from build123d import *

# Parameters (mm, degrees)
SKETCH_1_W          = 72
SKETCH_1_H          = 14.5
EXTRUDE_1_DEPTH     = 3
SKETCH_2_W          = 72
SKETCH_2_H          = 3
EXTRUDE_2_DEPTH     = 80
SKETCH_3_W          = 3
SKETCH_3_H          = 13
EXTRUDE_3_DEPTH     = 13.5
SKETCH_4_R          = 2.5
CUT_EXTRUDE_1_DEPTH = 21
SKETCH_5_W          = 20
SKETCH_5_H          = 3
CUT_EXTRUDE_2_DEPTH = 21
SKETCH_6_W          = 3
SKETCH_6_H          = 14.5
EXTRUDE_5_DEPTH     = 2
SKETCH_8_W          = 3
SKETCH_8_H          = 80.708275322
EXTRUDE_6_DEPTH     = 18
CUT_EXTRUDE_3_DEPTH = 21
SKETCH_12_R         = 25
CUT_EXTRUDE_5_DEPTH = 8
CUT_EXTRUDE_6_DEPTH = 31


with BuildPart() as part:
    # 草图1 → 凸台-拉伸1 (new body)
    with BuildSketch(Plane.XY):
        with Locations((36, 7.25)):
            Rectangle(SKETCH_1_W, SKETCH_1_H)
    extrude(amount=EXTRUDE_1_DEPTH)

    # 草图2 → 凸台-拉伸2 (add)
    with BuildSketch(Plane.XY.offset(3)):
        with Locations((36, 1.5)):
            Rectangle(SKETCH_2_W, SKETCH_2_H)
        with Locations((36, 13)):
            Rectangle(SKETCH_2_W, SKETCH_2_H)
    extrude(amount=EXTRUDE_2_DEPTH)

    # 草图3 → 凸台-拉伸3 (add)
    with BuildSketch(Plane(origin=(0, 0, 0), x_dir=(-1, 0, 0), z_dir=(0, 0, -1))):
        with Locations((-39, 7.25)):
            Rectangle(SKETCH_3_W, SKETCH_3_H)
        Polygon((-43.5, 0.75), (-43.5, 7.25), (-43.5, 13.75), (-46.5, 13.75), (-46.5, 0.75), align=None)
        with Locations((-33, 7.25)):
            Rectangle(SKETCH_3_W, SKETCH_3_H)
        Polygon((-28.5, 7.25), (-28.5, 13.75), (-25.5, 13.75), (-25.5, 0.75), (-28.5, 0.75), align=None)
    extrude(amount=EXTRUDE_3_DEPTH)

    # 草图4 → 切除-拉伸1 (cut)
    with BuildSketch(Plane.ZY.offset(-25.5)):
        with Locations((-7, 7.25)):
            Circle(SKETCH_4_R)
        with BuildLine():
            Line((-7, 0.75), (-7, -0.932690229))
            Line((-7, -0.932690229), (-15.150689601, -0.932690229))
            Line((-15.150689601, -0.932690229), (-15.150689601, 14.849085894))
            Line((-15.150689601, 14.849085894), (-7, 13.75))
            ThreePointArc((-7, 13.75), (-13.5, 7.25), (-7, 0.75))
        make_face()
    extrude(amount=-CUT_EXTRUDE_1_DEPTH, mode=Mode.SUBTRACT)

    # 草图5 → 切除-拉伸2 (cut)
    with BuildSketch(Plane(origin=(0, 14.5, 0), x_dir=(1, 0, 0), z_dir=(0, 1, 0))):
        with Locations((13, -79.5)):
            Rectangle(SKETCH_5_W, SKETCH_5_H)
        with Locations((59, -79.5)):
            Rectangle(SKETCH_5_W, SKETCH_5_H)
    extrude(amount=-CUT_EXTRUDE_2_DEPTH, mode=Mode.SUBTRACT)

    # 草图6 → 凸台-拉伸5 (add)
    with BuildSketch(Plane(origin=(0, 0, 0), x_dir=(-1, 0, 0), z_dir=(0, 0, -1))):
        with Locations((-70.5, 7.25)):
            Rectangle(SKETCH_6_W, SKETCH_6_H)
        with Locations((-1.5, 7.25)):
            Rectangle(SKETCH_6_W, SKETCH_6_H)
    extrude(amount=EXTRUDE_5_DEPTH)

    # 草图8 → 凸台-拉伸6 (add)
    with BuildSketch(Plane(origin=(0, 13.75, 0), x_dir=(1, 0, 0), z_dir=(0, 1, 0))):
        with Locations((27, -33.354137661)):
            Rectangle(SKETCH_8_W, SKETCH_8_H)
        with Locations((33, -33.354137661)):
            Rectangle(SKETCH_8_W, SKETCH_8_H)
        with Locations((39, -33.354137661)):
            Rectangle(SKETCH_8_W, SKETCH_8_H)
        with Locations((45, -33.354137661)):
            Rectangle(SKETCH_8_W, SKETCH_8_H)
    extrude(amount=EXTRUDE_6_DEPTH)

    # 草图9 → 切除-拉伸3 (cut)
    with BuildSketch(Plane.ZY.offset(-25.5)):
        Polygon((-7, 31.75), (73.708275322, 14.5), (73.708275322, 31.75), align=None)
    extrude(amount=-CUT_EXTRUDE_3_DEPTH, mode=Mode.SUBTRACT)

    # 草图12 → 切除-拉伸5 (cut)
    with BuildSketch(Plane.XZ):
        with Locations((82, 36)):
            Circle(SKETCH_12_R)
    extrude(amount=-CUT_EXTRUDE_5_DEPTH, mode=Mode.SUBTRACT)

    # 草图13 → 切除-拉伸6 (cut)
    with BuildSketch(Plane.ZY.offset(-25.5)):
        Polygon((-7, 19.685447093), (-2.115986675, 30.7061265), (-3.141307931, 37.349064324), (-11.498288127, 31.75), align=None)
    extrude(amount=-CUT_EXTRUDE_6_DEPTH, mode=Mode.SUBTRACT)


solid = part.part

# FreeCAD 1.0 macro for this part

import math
import FreeCAD as App
import Part
import Sketcher


def add_polygon(sketch, points):
    """Adds a closed chain of lines whose ends are joined by coincident constraints."""
    first, n = sketch.GeometryCount, len(points)
    for a, b in zip(points, points[1:] + points[:1]):
        sketch.addGeometry(Part.LineSegment(App.Vector(*a, 0), App.Vector(*b, 0)), False)
    for i in range(n):
        sketch.addConstraint(Sketcher.Constraint("Coincident", first + i, 2, first + (i + 1) % n, 1))

doc = App.newDocument("Part")
body = doc.addObject("PartDesign::Body", "Body")

sketch1 = body.newObject("Sketcher::SketchObject", "Sketch")
sketch1.AttachmentSupport = (doc.getObject("XY_Plane"), [""])
sketch1.MapMode = "FlatFace"
add_polygon(sketch1, [(0, 14.5), (0, 0), (72, 0), (72, 14.5)])
sketch1.addConstraint([
    Sketcher.Constraint("Vertical", 0),
    Sketcher.Constraint("Horizontal", 1),
    Sketcher.Constraint("Vertical", 2),
    Sketcher.Constraint("Horizontal", 3),
    Sketcher.Constraint("Coincident", 0, 2, -1, 1),
    Sketcher.Constraint("DistanceX", 1, 1, 1, 2, 72.0),
    Sketcher.Constraint("DistanceY", 0, 2, 0, 1, 14.5),
])
pad1 = body.newObject("PartDesign::Pad", "Pad")
pad1.Profile = sketch1
pad1.Length = 3

sketch2 = body.newObject("Sketcher::SketchObject", "Sketch001")
sketch2.AttachmentSupport = (doc.getObject("XY_Plane"), [""])
sketch2.MapMode = "FlatFace"
sketch2.AttachmentOffset = App.Placement(App.Vector(0, 0, 3), App.Rotation())
add_polygon(sketch2, [(0, 3), (0, 0), (72, 0), (72, 3)])
add_polygon(sketch2, [(0, 14.5), (0, 11.5), (72, 11.5), (72, 14.5)])
sketch2.addConstraint([
    Sketcher.Constraint("Vertical", 0),
    Sketcher.Constraint("Horizontal", 1),
    Sketcher.Constraint("Vertical", 2),
    Sketcher.Constraint("Horizontal", 3),
    Sketcher.Constraint("Vertical", 4),
    Sketcher.Constraint("Horizontal", 5),
    Sketcher.Constraint("Vertical", 6),
    Sketcher.Constraint("Horizontal", 7),
    Sketcher.Constraint("Coincident", 0, 2, -1, 1),
    Sketcher.Constraint("PointOnObject", 4, 2, -2),
    Sketcher.Constraint("Vertical", 2, 2, 5, 2),
    Sketcher.Constraint("Equal", 2, 4),
    Sketcher.Constraint("DistanceX", 1, 1, 1, 2, 72.0),
    Sketcher.Constraint("DistanceY", 0, 2, 0, 1, 3.0),
    Sketcher.Constraint("DistanceY", -1, 1, 4, 2, 11.5),
])
pad2 = body.newObject("PartDesign::Pad", "Pad001")
pad2.Profile = sketch2
pad2.Length = 80

sketch3 = body.newObject("Sketcher::SketchObject", "Sketch002")
sketch3.AttachmentSupport = (doc.getObject("XY_Plane"), [""])
sketch3.MapMode = "FlatFace"
add_polygon(sketch3, [(40.5, 13.75), (40.5, 0.75), (37.5, 0.75), (37.5, 13.75)])
add_polygon(sketch3, [(43.5, 0.75), (43.5, 13.75), (46.5, 13.75), (46.5, 0.75)])
add_polygon(sketch3, [(34.5, 13.75), (34.5, 0.75), (31.5, 0.75), (31.5, 13.75)])
add_polygon(sketch3, [(28.5, 13.75), (28.5, 0.75), (25.5, 0.75), (25.5, 13.75)])
sketch3.addConstraint([
    Sketcher.Constraint("Vertical", 0),
    Sketcher.Constraint("Horizontal", 1),
    Sketcher.Constraint("Vertical", 2),
    Sketcher.Constraint("Horizontal", 3),
    Sketcher.Constraint("Vertical", 4),
    Sketcher.Constraint("Horizontal", 5),
    Sketcher.Constraint("Vertical", 6),
    Sketcher.Constraint("Horizontal", 7),
    Sketcher.Constraint("Vertical", 8),
    Sketcher.Constraint("Horizontal", 9),
    Sketcher.Constraint("Vertical", 10),
    Sketcher.Constraint("Horizontal", 11),
    Sketcher.Constraint("Vertical", 12),
    Sketcher.Constraint("Horizontal", 13),
    Sketcher.Constraint("Vertical", 14),
    Sketcher.Constraint("Horizontal", 15),
    Sketcher.Constraint("Horizontal", 3, 2, 4, 2),
    Sketcher.Constraint("Horizontal", 1, 2, 6, 2),
    Sketcher.Constraint("Horizontal", 7, 2, 8, 2),
    Sketcher.Constraint("Horizontal", 5, 2, 10, 2),
    Sketcher.Constraint("Horizontal", 9, 2, 12, 2),
    Sketcher.Constraint("Horizontal", 11, 2, 14, 2),
    Sketcher.Constraint("Equal", 3, 5),
    Sketcher.Constraint("Equal", 7, 9),
    Sketcher.Constraint("Equal", 11, 13),
    Sketcher.Constraint("DistanceX", 1, 2, 1, 1, 3.0),
    Sketcher.Constraint("DistanceY", 0, 2, 0, 1, 13.0),
    Sketcher.Constraint("DistanceX", 3, 2, 4, 2, 3.0),
    Sketcher.Constraint("DistanceX", 8, 2, 1, 2, 3.0),
    Sketcher.Constraint("DistanceX", 12, 2, 9, 2, 3.0),
    Sketcher.Constraint("DistanceX", -1, 1, 0, 2, 40.5),
    Sketcher.Constraint("DistanceY", -1, 1, 0, 2, 0.75),
])
pad3 = body.newObject("PartDesign::Pad", "Pad002")
pad3.Profile = sketch3
pad3.Length = 13.5
pad3.Reversed = True

sketch4 = body.newObject("Sketcher::SketchObject", "Sketch003")
sketch4.AttachmentSupport = (doc.getObject("YZ_Plane"), [""])
sketch4.MapMode = "FlatFace"
sketch4.AttachmentOffset = App.Placement(App.Vector(0, 0, 25.5), App.Rotation())
sketch4.addGeometry([
    Part.Circle(App.Vector(7.25, -7, 0), App.Vector(0, 0, 1), 2.5),
    Part.LineSegment(App.Vector(-0.93269, -7, 0), App.Vector(0.75, -7, 0)),
    Part.ArcOfCircle(Part.Circle(App.Vector(7.25, -7, 0), App.Vector(0, 0, 1), 6.5), math.radians(180), math.radians(360)),
    Part.LineSegment(App.Vector(13.75, -7, 0), App.Vector(14.849086, -15.15069, 0)),
    Part.LineSegment(App.Vector(14.849086, -15.15069, 0), App.Vector(-0.93269, -15.15069, 0)),
    Part.LineSegment(App.Vector(-0.93269, -15.15069, 0), App.Vector(-0.93269, -7, 0)),
], False)
sketch4.addConstraint([
    Sketcher.Constraint("Coincident", 1, 2, 2, 1),
    Sketcher.Constraint("Coincident", 2, 2, 3, 1),
    Sketcher.Constraint("Coincident", 3, 2, 4, 1),
    Sketcher.Constraint("Coincident", 4, 2, 5, 1),
    Sketcher.Constraint("Coincident", 5, 2, 1, 1),
    Sketcher.Constraint("Horizontal", 1),
    Sketcher.Constraint("Horizontal", 4),
    Sketcher.Constraint("Vertical", 5),
    Sketcher.Constraint("Coincident", 2, 3, 0, 3),
    Sketcher.Constraint("Horizontal", 2, 3, 1, 2),
    Sketcher.Constraint("Horizontal", 1, 2, 2, 2),
    Sketcher.Constraint("Diameter", 0, 5.0),
    Sketcher.Constraint("Radius", 2, 6.5),
    Sketcher.Constraint("DistanceY", 0, 3, -1, 1, 7.0),
    Sketcher.Constraint("DistanceX", -1, 1, 0, 3, 7.25),
    Sketcher.Constraint("DistanceX", 1, 1, 1, 2, 1.68269),
    Sketcher.Constraint("DistanceY", 5, 1, 5, 2, 8.15069),
    Sketcher.Constraint("Distance", 3, 8.224459),
])
pocket1 = body.newObject("PartDesign::Pocket", "Pocket")
pocket1.Profile = sketch4
pocket1.Length = 21
pocket1.Reversed = True

sketch5 = body.newObject("Sketcher::SketchObject", "Sketch004")
sketch5.AttachmentSupport = (doc.getObject("XZ_Plane"), [""])
sketch5.MapMode = "FlatFace"
sketch5.AttachmentOffset = App.Placement(App.Vector(0, 0, -14.5), App.Rotation())
add_polygon(sketch5, [(3, 78), (3, 81), (23, 81), (23, 78)])
add_polygon(sketch5, [(49, 78), (49, 81), (69, 81), (69, 78)])
sketch5.addConstraint([
    Sketcher.Constraint("Vertical", 0),
    Sketcher.Constraint("Horizontal", 1),
    Sketcher.Constraint("Vertical", 2),
    Sketcher.Constraint("Horizontal", 3),
    Sketcher.Constraint("Vertical", 4),
    Sketcher.Constraint("Horizontal", 5),
    Sketcher.Constraint("Vertical", 6),
    Sketcher.Constraint("Horizontal", 7),
    Sketcher.Constraint("Horizontal", 1, 2, 4, 2),
    Sketcher.Constraint("Horizontal", 3, 2, 6, 2),
    Sketcher.Constraint("Equal", 3, 5),
    Sketcher.Constraint("DistanceX", 1, 1, 1, 2, 20.0),
    Sketcher.Constraint("DistanceY", 0, 1, 0, 2, 3.0),
    Sketcher.Constraint("DistanceX", -1, 1, 0, 2, 3.0),
    Sketcher.Constraint("DistanceY", -1, 1, 0, 2, 81.0),
    Sketcher.Constraint("DistanceX", -1, 1, 4, 2, 49.0),
])
pocket2 = body.newObject("PartDesign::Pocket", "Pocket001")
pocket2.Profile = sketch5
pocket2.Length = 21
pocket2.Reversed = True

sketch6 = body.newObject("Sketcher::SketchObject", "Sketch005")
sketch6.AttachmentSupport = (doc.getObject("XY_Plane"), [""])
sketch6.MapMode = "FlatFace"
add_polygon(sketch6, [(72, 14.5), (72, 0), (69, 0), (69, 14.5)])
add_polygon(sketch6, [(3, 14.5), (3, 0), (0, 0), (0, 14.5)])
sketch6.addConstraint([
    Sketcher.Constraint("Vertical", 0),
    Sketcher.Constraint("Horizontal", 1),
    Sketcher.Constraint("Vertical", 2),
    Sketcher.Constraint("Horizontal", 3),
    Sketcher.Constraint("Vertical", 4),
    Sketcher.Constraint("Horizontal", 5),
    Sketcher.Constraint("Vertical", 6),
    Sketcher.Constraint("Horizontal", 7),
    Sketcher.Constraint("Coincident", 5, 2, -1, 1),
    Sketcher.Constraint("PointOnObject", 0, 2, -1),
    Sketcher.Constraint("Horizontal", 3, 2, 6, 2),
    Sketcher.Constraint("Equal", 3, 5),
    Sketcher.Constraint("DistanceX", 1, 2, 1, 1, 3.0),
    Sketcher.Constraint("DistanceY", 0, 2, 0, 1, 14.5),
    Sketcher.Constraint("DistanceX", -1, 1, 0, 2, 72.0),
])
pad4 = body.newObject("PartDesign::Pad", "Pad003")
pad4.Profile = sketch6
pad4.Length = 2
pad4.Reversed = True

sketch7 = body.newObject("Sketcher::SketchObject", "Sketch006")
sketch7.AttachmentSupport = (doc.getObject("XZ_Plane"), [""])
sketch7.MapMode = "FlatFace"
sketch7.AttachmentOffset = App.Placement(App.Vector(0, 0, -13.75), App.Rotation())
add_polygon(sketch7, [(25.5, -7), (25.5, 73.708275), (28.5, 73.708275), (28.5, -7)])
add_polygon(sketch7, [(31.5, -7), (31.5, 73.708275), (34.5, 73.708275), (34.5, -7)])
add_polygon(sketch7, [(37.5, -7), (37.5, 73.708275), (40.5, 73.708275), (40.5, -7)])
add_polygon(sketch7, [(43.5, -7), (43.5, 73.708275), (46.5, 73.708275), (46.5, -7)])
sketch7.addConstraint([
    Sketcher.Constraint("Vertical", 0),
    Sketcher.Constraint("Horizontal", 1),
    Sketcher.Constraint("Vertical", 2),
    Sketcher.Constraint("Horizontal", 3),
    Sketcher.Constraint("Vertical", 4),
    Sketcher.Constraint("Horizontal", 5),
    Sketcher.Constraint("Vertical", 6),
    Sketcher.Constraint("Horizontal", 7),
    Sketcher.Constraint("Vertical", 8),
    Sketcher.Constraint("Horizontal", 9),
    Sketcher.Constraint("Vertical", 10),
    Sketcher.Constraint("Horizontal", 11),
    Sketcher.Constraint("Vertical", 12),
    Sketcher.Constraint("Horizontal", 13),
    Sketcher.Constraint("Vertical", 14),
    Sketcher.Constraint("Horizontal", 15),
    Sketcher.Constraint("Horizontal", 1, 2, 4, 2),
    Sketcher.Constraint("Horizontal", 3, 2, 6, 2),
    Sketcher.Constraint("Horizontal", 5, 2, 8, 2),
    Sketcher.Constraint("Horizontal", 7, 2, 10, 2),
    Sketcher.Constraint("Horizontal", 9, 2, 12, 2),
    Sketcher.Constraint("Horizontal", 11, 2, 14, 2),
    Sketcher.Constraint("Equal", 3, 5),
    Sketcher.Constraint("Equal", 7, 9),
    Sketcher.Constraint("Equal", 11, 13),
    Sketcher.Constraint("DistanceX", 1, 1, 1, 2, 3.0),
    Sketcher.Constraint("DistanceY", 2, 2, -1, 1, 7.0),
    Sketcher.Constraint("DistanceX", 1, 2, 4, 2, 3.0),
    Sketcher.Constraint("DistanceX", 5, 2, 8, 2, 3.0),
    Sketcher.Constraint("DistanceX", 9, 2, 12, 2, 3.0),
    Sketcher.Constraint("DistanceX", -1, 1, 0, 2, 25.5),
    Sketcher.Constraint("DistanceY", 0, 1, 0, 2, 80.708275),
])
pad5 = body.newObject("PartDesign::Pad", "Pad004")
pad5.Profile = sketch7
pad5.Length = 18
pad5.Reversed = True

sketch8 = body.newObject("Sketcher::SketchObject", "Sketch007")
sketch8.AttachmentSupport = (doc.getObject("YZ_Plane"), [""])
sketch8.MapMode = "FlatFace"
sketch8.AttachmentOffset = App.Placement(App.Vector(0, 0, 25.5), App.Rotation())
add_polygon(sketch8, [(31.75, -7), (14.5, 73.708275), (31.75, 73.708275)])
sketch8.addConstraint([
    Sketcher.Constraint("Horizontal", 1),
    Sketcher.Constraint("Vertical", 2),
    Sketcher.Constraint("DistanceY", 2, 2, -1, 1, 7.0),
    Sketcher.Constraint("DistanceX", 1, 1, 1, 2, 17.25),
    Sketcher.Constraint("DistanceX", -1, 1, 0, 2, 14.5),
    Sketcher.Constraint("DistanceY", 2, 2, 2, 1, 80.708275),
])
pocket3 = body.newObject("PartDesign::Pocket", "Pocket002")
pocket3.Profile = sketch8
pocket3.Length = 21
pocket3.Reversed = True

sketch9 = body.newObject("Sketcher::SketchObject", "Sketch008")
sketch9.AttachmentSupport = (doc.getObject("XZ_Plane"), [""])
sketch9.MapMode = "FlatFace"
sketch9.addGeometry(Part.Circle(App.Vector(82, 36, 0), App.Vector(0, 0, 1), 25), False)
sketch9.addConstraint([
    Sketcher.Constraint("Diameter", 0, 50.0),
    Sketcher.Constraint("DistanceX", -1, 1, 0, 3, 82.0),
    Sketcher.Constraint("DistanceY", -1, 1, 0, 3, 36.0),
])
pocket4 = body.newObject("PartDesign::Pocket", "Pocket003")
pocket4.Profile = sketch9
pocket4.Length = 8

sketch10 = body.newObject("Sketcher::SketchObject", "Sketch009")
sketch10.AttachmentSupport = (doc.getObject("YZ_Plane"), [""])
sketch10.MapMode = "FlatFace"
sketch10.AttachmentOffset = App.Placement(App.Vector(0, 0, 25.5), App.Rotation())
add_polygon(sketch10, [(19.685447, -7), (30.706126, -2.115987), (37.349064, -3.141308), (31.75, -11.498288)])
sketch10.addConstraint([
    Sketcher.Constraint("DistanceY", 3, 2, -1, 1, 7.0),
    Sketcher.Constraint("DistanceX", -1, 1, 2, 2, 31.75),
    Sketcher.Constraint("Distance", 1, 6.7216),
    Sketcher.Constraint("DistanceY", 2, 2, 0, 2, 9.382301),
    Sketcher.Constraint("Distance", 3, 12.87587),
    Sketcher.Constraint("DistanceY", 2, 2, -1, 1, 11.498288),
    Sketcher.Constraint("DistanceY", 1, 2, 0, 2, 1.025321),
    Sketcher.Constraint("DistanceX", 3, 2, 0, 2, 11.020679),
])
pocket5 = body.newObject("PartDesign::Pocket", "Pocket004")
pocket5.Profile = sketch10
pocket5.Length = 31
pocket5.Reversed = True

doc.recompute()
